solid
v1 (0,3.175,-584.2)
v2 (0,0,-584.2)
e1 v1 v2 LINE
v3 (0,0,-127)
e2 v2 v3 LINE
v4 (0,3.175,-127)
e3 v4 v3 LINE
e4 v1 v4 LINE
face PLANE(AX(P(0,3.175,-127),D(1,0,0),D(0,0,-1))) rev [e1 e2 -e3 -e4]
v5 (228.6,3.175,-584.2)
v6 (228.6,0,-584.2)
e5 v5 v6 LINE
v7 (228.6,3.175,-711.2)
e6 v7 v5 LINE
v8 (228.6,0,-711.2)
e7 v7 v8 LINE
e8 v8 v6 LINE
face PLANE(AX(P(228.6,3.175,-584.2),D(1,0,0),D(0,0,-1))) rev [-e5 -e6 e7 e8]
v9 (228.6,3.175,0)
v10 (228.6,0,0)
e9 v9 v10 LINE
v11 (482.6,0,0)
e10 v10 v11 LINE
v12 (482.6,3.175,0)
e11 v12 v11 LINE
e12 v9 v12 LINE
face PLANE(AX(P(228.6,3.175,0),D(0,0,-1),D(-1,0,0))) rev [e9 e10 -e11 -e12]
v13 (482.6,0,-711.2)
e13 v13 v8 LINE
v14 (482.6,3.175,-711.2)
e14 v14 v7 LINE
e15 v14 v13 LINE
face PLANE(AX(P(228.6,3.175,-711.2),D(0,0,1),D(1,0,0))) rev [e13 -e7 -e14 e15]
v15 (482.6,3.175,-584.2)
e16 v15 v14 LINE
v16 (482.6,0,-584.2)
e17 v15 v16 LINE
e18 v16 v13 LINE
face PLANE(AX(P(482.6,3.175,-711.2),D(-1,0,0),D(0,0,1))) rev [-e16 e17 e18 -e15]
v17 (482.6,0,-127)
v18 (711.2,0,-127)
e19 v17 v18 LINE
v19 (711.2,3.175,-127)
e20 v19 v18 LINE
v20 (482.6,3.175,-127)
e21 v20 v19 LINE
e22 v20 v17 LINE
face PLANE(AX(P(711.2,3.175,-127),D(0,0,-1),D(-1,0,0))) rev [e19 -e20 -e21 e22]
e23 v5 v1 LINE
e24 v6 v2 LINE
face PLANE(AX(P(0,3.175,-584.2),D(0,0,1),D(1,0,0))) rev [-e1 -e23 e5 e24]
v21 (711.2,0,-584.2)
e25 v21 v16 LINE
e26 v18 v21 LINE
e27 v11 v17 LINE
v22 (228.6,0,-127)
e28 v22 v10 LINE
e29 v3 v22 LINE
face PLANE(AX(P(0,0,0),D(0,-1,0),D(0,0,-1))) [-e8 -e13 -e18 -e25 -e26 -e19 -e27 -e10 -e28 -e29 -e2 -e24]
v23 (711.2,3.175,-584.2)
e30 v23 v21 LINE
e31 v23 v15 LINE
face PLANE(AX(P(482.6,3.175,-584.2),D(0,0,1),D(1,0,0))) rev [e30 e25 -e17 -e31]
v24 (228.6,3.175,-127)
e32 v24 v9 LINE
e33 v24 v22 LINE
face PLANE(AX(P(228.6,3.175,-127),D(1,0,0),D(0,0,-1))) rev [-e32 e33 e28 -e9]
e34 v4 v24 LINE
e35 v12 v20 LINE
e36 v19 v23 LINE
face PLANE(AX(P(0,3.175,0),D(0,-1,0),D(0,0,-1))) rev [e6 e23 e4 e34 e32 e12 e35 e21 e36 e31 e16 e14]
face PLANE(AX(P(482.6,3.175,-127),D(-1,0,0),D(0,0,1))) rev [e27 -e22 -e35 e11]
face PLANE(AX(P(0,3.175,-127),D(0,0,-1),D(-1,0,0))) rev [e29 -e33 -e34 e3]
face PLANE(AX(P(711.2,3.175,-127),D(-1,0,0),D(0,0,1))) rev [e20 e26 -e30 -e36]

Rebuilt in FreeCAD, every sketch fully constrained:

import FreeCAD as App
import Part
import Sketcher
Q = App.Units.Quantity


def add_polygon(sketch, points):
    """Adds a closed chain of lines whose ends are joined by coincident constraints."""
    first, n = sketch.GeometryCount, len(points)
    for a, b in zip(points, points[1:] + points[:1]):
        sketch.addGeometry(Part.LineSegment(App.Vector(*a, 0), App.Vector(*b, 0)), False)
    for i in range(n):
        sketch.addConstraint(Sketcher.Constraint("Coincident", first + i, 2, first + (i + 1) % n, 1))

doc = App.newDocument("Part")
body = doc.addObject("PartDesign::Body", "Body")

sketch1 = doc.addObject("Sketcher::SketchObject", "Sketch")
body.addObject(sketch1)
sketch1.AttachmentSupport = (doc.XZ_Plane, [""])
sketch1.MapMode = "FlatFace"
add_polygon(sketch1, [(229, -584), (0, -584), (0, -127), (229, -127), (229, 0), (483, 0), (483, -127), (711, -127), (711, -584), (483, -584), (483, -711), (229, -711)])
sketch1.addConstraint([
    Sketcher.Constraint("Horizontal", 0),
    Sketcher.Constraint("Vertical", 1),
    Sketcher.Constraint("Horizontal", 2),
    Sketcher.Constraint("Vertical", 3),
    Sketcher.Constraint("Horizontal", 4),
    Sketcher.Constraint("Vertical", 5),
    Sketcher.Constraint("Horizontal", 6),
    Sketcher.Constraint("Vertical", 7),
    Sketcher.Constraint("Horizontal", 8),
    Sketcher.Constraint("Vertical", 9),
    Sketcher.Constraint("Horizontal", 10),
    Sketcher.Constraint("Vertical", 11),
    Sketcher.Constraint("PointOnObject", 0, 2, -2),
    Sketcher.Constraint("PointOnObject", 3, 2, -1),
    Sketcher.Constraint("Horizontal", 2, 2, 5, 2),
    Sketcher.Constraint("Horizontal", 0, 2, 7, 2),
    Sketcher.Constraint("Vertical", 5, 2, 8, 2),
    Sketcher.Constraint("Vertical", 3, 2, 10, 2),
    Sketcher.Constraint("Equal", 2, 6),
    Sketcher.Constraint("Equal", 5, 9),
    Sketcher.Constraint("DistanceX", 0, 2, 0, 1, Q("9 in")),
    Sketcher.Constraint("DistanceX", 4, 1, 4, 2, Q("10 in")),
    Sketcher.Constraint("DistanceY", 1, 1, 1, 2, Q("18 in")),
    Sketcher.Constraint("DistanceY", 3, 1, 3, 2, Q("5 in")),
])
pad1 = doc.addObject("PartDesign::Pad", "Pad")
body.addObject(pad1)
pad1.Profile = sketch1
pad1.Length = Q("0.125 in")
pad1.Reversed = True

doc.recompute()
